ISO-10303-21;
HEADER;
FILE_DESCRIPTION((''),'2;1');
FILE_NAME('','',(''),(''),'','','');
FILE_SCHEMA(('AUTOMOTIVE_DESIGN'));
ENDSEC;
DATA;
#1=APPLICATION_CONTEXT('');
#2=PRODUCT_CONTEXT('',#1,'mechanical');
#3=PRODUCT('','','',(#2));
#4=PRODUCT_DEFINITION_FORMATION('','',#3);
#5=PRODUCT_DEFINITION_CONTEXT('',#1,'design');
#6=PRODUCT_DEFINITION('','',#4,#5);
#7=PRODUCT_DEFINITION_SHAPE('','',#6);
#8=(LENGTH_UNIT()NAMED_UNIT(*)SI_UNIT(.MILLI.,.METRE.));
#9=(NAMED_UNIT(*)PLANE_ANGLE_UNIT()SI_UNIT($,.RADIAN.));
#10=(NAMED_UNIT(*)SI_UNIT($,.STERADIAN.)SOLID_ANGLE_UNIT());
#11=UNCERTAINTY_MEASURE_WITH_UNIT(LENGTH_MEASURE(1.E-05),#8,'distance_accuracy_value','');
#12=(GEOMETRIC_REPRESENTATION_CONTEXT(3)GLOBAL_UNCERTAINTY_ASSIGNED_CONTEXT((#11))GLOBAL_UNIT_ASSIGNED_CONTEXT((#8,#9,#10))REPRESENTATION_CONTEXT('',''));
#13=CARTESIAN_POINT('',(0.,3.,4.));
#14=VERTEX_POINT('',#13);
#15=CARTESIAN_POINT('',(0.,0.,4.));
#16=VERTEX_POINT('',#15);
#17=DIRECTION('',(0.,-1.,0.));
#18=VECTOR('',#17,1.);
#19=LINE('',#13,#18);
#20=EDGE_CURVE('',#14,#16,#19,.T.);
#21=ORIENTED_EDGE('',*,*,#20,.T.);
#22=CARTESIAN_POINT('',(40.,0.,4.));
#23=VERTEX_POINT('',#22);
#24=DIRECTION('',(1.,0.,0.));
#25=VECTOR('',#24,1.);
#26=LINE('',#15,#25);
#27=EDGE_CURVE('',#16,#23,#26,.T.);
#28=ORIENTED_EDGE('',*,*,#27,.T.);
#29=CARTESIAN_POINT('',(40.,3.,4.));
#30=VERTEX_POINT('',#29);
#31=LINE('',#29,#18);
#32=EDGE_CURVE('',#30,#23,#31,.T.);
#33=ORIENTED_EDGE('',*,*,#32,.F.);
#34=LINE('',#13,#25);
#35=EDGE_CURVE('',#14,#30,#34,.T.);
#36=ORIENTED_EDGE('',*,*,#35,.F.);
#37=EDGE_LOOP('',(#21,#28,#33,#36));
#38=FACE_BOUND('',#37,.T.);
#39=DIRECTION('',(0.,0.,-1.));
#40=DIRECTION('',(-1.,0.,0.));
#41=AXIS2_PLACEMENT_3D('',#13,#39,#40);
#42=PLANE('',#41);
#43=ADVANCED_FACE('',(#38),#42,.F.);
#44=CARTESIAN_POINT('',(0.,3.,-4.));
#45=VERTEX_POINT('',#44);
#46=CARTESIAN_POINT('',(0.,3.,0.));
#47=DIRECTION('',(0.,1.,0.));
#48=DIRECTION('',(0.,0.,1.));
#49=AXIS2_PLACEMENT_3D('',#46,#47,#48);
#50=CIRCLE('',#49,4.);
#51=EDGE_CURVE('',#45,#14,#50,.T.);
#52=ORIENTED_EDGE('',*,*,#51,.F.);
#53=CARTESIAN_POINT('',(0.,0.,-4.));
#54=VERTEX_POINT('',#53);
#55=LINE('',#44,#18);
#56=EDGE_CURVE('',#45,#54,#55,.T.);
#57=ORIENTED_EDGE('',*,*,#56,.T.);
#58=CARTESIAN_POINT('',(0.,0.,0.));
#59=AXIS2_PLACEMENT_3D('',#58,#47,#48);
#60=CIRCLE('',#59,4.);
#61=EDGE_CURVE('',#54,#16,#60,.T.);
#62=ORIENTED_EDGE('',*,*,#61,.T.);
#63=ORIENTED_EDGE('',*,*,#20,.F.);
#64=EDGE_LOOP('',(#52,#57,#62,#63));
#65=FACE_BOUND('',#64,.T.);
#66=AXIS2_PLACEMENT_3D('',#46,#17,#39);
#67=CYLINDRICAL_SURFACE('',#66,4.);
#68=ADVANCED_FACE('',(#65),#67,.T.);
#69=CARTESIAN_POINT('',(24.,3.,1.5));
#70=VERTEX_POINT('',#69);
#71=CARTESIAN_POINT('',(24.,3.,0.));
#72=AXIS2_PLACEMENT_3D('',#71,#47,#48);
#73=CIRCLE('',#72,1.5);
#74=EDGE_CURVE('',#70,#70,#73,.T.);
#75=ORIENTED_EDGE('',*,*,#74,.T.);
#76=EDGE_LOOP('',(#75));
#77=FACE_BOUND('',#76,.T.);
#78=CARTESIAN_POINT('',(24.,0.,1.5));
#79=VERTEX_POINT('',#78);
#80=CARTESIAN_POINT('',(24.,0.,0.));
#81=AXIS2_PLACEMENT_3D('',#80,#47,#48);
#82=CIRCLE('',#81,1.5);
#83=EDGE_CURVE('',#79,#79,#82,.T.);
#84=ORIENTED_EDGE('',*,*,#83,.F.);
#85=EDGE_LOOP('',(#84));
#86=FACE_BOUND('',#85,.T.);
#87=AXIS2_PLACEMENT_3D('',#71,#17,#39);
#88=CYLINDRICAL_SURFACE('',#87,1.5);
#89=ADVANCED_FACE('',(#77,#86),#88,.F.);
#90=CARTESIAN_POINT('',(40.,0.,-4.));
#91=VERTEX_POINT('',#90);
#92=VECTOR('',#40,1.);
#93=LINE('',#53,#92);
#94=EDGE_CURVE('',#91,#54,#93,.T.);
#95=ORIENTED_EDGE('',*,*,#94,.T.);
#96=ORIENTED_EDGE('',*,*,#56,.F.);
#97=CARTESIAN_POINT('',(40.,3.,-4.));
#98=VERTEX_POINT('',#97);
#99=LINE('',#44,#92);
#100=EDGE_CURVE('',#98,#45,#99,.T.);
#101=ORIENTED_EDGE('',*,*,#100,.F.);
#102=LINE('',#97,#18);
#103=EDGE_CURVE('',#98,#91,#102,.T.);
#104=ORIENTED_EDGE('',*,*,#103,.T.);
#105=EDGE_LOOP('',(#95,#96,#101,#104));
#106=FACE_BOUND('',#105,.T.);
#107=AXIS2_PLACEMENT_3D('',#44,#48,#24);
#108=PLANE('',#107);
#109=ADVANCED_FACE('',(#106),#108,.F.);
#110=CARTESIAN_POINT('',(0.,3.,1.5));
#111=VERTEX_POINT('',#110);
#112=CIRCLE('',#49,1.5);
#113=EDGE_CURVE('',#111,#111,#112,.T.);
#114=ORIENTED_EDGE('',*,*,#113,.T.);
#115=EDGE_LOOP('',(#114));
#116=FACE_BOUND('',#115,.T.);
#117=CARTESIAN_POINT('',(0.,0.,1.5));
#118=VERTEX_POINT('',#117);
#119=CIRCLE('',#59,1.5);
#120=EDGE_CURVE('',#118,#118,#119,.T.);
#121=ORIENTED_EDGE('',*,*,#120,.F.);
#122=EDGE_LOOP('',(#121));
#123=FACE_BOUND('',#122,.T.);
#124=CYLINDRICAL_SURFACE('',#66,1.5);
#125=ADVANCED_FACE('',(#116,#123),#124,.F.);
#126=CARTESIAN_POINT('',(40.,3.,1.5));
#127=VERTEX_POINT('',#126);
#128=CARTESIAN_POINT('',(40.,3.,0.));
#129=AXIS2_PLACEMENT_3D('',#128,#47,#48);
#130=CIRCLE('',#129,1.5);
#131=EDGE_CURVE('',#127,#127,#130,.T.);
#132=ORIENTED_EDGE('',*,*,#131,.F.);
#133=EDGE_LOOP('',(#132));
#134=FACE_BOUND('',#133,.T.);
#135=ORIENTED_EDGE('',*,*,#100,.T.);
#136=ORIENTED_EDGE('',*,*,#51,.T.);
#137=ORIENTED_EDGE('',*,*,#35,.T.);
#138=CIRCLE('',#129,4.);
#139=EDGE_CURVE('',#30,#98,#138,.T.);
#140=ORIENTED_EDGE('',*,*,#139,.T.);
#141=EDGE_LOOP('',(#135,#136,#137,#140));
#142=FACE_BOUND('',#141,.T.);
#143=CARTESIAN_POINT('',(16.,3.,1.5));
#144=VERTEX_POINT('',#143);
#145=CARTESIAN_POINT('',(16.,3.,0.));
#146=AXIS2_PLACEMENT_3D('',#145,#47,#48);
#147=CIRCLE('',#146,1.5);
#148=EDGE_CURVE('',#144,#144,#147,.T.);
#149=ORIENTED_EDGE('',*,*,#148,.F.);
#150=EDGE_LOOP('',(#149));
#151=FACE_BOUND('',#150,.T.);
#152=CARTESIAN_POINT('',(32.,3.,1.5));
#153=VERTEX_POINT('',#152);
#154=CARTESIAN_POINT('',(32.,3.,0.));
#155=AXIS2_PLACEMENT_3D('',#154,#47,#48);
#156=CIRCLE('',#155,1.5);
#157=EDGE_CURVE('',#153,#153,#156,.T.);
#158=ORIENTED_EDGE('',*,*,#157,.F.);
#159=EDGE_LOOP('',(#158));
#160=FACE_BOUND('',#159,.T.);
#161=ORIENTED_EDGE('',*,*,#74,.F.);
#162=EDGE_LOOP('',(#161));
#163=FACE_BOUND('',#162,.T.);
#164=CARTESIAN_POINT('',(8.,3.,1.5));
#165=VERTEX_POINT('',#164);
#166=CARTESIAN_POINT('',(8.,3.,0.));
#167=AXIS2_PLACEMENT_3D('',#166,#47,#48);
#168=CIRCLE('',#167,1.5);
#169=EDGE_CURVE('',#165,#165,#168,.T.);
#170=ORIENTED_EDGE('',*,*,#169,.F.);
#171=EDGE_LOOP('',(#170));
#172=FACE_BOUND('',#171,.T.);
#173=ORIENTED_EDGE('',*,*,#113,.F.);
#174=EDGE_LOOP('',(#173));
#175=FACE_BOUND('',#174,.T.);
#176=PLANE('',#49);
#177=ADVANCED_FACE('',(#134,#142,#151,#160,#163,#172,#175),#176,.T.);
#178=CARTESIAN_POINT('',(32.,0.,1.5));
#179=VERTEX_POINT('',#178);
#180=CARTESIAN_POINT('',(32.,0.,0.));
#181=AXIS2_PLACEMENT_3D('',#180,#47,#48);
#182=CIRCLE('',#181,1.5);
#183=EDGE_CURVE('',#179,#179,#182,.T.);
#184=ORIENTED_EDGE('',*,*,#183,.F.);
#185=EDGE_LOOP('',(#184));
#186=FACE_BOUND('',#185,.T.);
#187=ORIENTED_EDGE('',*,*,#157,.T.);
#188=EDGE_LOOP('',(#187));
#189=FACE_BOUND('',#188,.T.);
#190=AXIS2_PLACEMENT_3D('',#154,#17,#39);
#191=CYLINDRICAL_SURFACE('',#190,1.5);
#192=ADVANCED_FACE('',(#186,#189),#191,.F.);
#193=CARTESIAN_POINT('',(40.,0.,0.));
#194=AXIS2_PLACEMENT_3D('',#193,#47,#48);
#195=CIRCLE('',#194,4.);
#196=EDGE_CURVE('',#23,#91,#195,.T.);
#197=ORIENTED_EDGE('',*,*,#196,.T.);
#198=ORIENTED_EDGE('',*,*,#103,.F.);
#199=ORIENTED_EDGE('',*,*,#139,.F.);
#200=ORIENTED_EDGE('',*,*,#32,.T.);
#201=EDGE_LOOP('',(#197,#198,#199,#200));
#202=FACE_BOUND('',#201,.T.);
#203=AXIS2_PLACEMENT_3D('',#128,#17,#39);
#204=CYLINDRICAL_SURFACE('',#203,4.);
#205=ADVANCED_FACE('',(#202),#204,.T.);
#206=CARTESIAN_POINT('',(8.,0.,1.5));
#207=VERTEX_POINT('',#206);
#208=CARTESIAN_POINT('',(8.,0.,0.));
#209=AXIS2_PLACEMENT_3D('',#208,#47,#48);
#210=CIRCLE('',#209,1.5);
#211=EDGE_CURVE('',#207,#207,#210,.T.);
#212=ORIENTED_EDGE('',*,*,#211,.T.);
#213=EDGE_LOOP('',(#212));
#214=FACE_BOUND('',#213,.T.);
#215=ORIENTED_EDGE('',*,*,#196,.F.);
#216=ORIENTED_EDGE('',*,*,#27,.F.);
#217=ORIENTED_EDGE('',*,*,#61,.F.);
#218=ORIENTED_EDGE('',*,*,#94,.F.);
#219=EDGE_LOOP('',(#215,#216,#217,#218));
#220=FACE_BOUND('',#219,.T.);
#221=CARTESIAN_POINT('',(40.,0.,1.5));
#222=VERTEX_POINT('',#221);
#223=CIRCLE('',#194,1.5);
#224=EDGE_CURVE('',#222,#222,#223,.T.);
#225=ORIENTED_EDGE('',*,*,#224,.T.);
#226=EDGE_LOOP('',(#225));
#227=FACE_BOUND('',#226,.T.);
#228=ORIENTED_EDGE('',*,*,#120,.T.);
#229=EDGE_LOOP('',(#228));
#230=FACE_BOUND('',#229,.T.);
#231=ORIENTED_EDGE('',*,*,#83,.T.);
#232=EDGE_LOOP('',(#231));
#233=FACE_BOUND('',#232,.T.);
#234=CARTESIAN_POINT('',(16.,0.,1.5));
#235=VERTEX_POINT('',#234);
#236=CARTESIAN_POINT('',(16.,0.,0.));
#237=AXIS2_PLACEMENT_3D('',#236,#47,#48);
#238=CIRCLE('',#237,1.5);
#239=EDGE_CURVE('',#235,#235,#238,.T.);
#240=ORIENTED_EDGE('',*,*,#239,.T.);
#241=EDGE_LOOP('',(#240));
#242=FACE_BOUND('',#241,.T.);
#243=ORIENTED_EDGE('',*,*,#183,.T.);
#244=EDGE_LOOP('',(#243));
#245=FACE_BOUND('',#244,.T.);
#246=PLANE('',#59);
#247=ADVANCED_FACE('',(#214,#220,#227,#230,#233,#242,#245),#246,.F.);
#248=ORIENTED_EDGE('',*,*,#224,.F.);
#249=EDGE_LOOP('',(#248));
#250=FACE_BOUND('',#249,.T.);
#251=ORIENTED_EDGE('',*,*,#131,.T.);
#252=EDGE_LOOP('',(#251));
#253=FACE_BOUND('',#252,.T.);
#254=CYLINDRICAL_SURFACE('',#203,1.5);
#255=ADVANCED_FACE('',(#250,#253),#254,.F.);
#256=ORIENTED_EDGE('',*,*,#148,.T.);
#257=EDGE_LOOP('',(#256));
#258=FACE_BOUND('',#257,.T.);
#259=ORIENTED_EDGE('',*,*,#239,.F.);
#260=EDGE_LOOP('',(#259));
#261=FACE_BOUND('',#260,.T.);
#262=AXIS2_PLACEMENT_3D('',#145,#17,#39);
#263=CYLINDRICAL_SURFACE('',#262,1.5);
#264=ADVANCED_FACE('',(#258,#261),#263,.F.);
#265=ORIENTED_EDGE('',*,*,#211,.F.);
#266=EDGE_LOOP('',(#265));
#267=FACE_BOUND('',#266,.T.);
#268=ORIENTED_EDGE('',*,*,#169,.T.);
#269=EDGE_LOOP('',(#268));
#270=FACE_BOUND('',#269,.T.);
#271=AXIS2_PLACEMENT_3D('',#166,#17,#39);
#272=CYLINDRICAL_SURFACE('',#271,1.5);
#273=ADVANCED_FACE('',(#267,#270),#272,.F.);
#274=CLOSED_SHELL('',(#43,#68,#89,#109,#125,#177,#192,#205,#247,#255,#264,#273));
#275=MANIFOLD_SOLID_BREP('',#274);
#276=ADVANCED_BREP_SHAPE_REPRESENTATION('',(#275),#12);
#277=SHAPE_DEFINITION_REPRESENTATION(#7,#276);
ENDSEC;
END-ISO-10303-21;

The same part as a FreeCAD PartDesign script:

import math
import FreeCAD as App
import Part
import Sketcher
Q = App.Units.Quantity

doc = App.newDocument("Part")
body = doc.addObject("PartDesign::Body", "Body")

sketch1 = doc.addObject("Sketcher::SketchObject", "Sketch")
body.addObject(sketch1)
sketch1.AttachmentSupport = (doc.XZ_Plane, [""])
sketch1.MapMode = "FlatFace"
sketch1.addGeometry(Part.LineSegment(App.Vector(40, -4, 0), App.Vector(0, -4, 0)), False)
sketch1.addGeometry(Part.ArcOfCircle(Part.Circle(App.Vector(0, 0, 0), App.Vector(0, 0, 1), 4), math.radians(90), math.radians(270)), False)
sketch1.addGeometry(Part.LineSegment(App.Vector(0, 4, 0), App.Vector(40, 4, 0)), False)
sketch1.addGeometry(Part.ArcOfCircle(Part.Circle(App.Vector(40, 0, 0), App.Vector(0, 0, 1), 4), math.radians(-90), math.radians(90)), False)
sketch1.addGeometry(Part.Circle(App.Vector(40, 0, 0), App.Vector(0, 0, 1), 1.5), False)
sketch1.addGeometry(Part.Circle(App.Vector(32, 0, 0), App.Vector(0, 0, 1), 1.5), False)
sketch1.addGeometry(Part.Circle(App.Vector(24, 0, 0), App.Vector(0, 0, 1), 1.5), False)
sketch1.addGeometry(Part.Circle(App.Vector(16, 0, 0), App.Vector(0, 0, 1), 1.5), False)
sketch1.addGeometry(Part.Circle(App.Vector(8, 0, 0), App.Vector(0, 0, 1), 1.5), False)
sketch1.addGeometry(Part.Circle(App.Vector(0, 0, 0), App.Vector(0, 0, 1), 1.5), False)
sketch1.addConstraint(Sketcher.Constraint("Tangent", 0, 2, 1, 2))
sketch1.addConstraint(Sketcher.Constraint("Tangent", 1, 1, 2, 1))
sketch1.addConstraint(Sketcher.Constraint("Tangent", 2, 2, 3, 2))
sketch1.addConstraint(Sketcher.Constraint("Tangent", 3, 1, 0, 1))
sketch1.addConstraint(Sketcher.Constraint("Horizontal", 0))
sketch1.addConstraint(Sketcher.Constraint("Horizontal", 2))
sketch1.addConstraint(Sketcher.Constraint("Coincident", 1, 3, -1, 1))
sketch1.addConstraint(Sketcher.Constraint("Coincident", 9, 3, -1, 1))
sketch1.addConstraint(Sketcher.Constraint("Coincident", 4, 3, 3, 3))
sketch1.addConstraint(Sketcher.Constraint("Equal", 4, 5))
sketch1.addConstraint(Sketcher.Constraint("Equal", 5, 6))
sketch1.addConstraint(Sketcher.Constraint("Equal", 6, 7))
sketch1.addConstraint(Sketcher.Constraint("Equal", 7, 8))
sketch1.addConstraint(Sketcher.Constraint("Equal", 8, 9))
sketch1.addConstraint(Sketcher.Constraint("PointOnObject", 5, 3, -1))
sketch1.addConstraint(Sketcher.Constraint("PointOnObject", 6, 3, -1))
sketch1.addConstraint(Sketcher.Constraint("PointOnObject", 7, 3, -1))
sketch1.addConstraint(Sketcher.Constraint("PointOnObject", 8, 3, -1))
sketch1.addConstraint(Sketcher.Constraint("Diameter", 4, Q("3 mm")))
sketch1.addConstraint(Sketcher.Constraint("Radius", 1, Q("4 mm")))
sketch1.addConstraint(Sketcher.Constraint("DistanceX", 0, 2, 0, 1, Q("40 mm")))
sketch1.addConstraint(Sketcher.Constraint("DistanceX", -1, 1, 5, 3, Q("32 mm")))
sketch1.addConstraint(Sketcher.Constraint("DistanceX", -1, 1, 6, 3, Q("24 mm")))
sketch1.addConstraint(Sketcher.Constraint("DistanceX", -1, 1, 7, 3, Q("16 mm")))
sketch1.addConstraint(Sketcher.Constraint("DistanceX", -1, 1, 8, 3, Q("8 mm")))
pad1 = doc.addObject("PartDesign::Pad", "Pad")
body.addObject(pad1)
pad1.Profile = sketch1
pad1.Length = 3
pad1.Reversed = True

doc.recompute()
